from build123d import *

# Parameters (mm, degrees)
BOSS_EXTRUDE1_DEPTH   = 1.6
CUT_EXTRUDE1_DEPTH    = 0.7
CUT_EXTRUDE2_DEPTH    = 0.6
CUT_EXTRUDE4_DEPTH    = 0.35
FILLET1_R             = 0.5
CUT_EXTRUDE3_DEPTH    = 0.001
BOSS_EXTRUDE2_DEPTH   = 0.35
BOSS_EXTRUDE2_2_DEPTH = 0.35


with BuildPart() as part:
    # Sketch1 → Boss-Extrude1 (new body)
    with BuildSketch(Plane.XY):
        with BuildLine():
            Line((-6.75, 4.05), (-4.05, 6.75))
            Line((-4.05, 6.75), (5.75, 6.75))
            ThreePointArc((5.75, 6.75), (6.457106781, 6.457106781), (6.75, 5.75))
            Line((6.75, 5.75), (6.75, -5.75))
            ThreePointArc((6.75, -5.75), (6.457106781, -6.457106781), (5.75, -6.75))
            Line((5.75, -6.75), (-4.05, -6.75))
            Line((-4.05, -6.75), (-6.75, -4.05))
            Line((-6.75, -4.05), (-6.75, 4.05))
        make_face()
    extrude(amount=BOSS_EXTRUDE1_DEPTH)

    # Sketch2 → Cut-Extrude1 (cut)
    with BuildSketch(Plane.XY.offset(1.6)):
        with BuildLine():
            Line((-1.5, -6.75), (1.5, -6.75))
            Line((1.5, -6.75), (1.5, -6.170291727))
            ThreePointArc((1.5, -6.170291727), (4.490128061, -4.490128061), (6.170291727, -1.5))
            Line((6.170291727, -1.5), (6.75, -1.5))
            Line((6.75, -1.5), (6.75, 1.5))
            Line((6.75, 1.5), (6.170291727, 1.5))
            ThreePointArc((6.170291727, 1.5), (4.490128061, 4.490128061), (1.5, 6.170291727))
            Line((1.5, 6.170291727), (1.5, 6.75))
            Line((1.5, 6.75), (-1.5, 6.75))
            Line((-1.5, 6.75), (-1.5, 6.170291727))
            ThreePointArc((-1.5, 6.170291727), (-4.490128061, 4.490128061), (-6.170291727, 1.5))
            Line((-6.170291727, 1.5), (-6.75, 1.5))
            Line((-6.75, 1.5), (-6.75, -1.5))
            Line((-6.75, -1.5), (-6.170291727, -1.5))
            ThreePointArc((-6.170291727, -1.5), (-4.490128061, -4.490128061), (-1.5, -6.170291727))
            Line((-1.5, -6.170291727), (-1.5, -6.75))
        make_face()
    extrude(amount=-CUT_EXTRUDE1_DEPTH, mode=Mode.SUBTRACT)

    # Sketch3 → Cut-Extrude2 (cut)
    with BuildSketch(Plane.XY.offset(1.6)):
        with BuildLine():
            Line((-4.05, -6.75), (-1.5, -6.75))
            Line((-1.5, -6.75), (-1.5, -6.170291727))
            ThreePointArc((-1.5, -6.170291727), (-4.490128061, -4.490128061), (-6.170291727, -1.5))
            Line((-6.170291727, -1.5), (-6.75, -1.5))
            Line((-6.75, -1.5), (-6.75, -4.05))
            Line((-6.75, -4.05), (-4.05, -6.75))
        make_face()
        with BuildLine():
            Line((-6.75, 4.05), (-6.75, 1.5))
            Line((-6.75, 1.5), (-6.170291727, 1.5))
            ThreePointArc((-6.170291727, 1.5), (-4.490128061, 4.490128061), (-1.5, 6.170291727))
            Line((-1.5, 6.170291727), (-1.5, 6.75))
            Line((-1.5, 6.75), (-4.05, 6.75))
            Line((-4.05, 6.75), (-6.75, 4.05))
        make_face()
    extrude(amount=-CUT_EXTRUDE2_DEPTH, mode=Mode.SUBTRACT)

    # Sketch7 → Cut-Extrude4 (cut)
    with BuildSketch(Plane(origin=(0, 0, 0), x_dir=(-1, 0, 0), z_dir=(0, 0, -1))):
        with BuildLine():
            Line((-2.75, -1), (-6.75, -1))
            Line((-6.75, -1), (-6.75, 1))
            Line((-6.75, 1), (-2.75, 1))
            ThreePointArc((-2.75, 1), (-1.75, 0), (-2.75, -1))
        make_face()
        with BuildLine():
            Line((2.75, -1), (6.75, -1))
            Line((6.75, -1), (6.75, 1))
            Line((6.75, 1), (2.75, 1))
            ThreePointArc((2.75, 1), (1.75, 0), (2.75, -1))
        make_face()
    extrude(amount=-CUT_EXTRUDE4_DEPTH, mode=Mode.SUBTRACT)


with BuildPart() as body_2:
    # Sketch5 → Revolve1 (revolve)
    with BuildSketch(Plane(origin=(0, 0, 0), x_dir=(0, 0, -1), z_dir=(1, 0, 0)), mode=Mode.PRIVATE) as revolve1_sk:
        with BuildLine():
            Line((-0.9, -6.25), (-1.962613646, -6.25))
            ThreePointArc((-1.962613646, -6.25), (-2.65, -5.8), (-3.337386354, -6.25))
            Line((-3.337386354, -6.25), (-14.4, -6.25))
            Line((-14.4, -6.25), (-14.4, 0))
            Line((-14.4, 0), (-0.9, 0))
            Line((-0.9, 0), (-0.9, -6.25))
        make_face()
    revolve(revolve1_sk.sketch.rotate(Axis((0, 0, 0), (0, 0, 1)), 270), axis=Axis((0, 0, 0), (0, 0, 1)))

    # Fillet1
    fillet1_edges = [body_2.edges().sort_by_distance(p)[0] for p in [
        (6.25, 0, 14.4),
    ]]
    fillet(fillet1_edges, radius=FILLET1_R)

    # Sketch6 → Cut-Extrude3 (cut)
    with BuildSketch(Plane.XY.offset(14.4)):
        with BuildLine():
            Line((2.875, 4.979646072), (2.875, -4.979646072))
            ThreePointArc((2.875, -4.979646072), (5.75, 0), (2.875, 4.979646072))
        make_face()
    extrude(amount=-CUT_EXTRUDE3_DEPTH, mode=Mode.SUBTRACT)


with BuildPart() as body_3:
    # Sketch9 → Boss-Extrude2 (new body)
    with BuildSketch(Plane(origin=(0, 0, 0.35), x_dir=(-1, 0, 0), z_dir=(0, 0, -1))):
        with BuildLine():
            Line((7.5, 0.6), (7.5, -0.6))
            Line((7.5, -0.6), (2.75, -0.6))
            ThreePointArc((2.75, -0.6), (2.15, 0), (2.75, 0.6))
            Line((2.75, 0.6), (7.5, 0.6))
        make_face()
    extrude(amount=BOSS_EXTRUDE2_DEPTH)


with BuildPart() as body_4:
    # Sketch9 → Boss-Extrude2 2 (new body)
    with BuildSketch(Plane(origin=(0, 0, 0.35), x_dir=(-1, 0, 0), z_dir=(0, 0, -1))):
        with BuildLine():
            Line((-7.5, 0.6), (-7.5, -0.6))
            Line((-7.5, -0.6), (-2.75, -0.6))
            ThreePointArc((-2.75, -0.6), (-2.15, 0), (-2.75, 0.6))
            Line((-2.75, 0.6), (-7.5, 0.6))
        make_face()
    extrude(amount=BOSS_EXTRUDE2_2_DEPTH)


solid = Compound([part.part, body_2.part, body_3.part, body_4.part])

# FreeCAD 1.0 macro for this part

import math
import FreeCAD as App
import Part
import Sketcher
Q = App.Units.Quantity


def edges_at(feature, points):
    """Names of the edges that pass closest to the given points."""
    edges = feature.Shape.Edges
    near = lambda p: min(range(len(edges)), key=lambda i: edges[i].distToShape(Part.Vertex(*p))[0])
    return sorted({f"Edge{near(p) + 1}" for p in points})

doc = App.newDocument("Part")
body = doc.addObject("PartDesign::Body", "Body")

# Sketch on XY plane
sketch1 = body.newObject("Sketcher::SketchObject", "Sketch")
sketch1.AttachmentSupport = (doc.getObject("XY_Plane"), [""])
sketch1.MapMode = "FlatFace"
sketch1.addGeometry([
    Part.LineSegment(App.Vector(-4.05, 6.75, 0), App.Vector(-6.75, 4.05, 0)),  # 0
    Part.LineSegment(App.Vector(-6.75, 4.05, 0), App.Vector(-6.75, -4.05, 0)),  # 1
    Part.LineSegment(App.Vector(-6.75, -4.05, 0), App.Vector(-4.05, -6.75, 0)),  # 2
    Part.LineSegment(App.Vector(-4.05, -6.75, 0), App.Vector(5.75, -6.75, 0)),  # 3
    Part.ArcOfCircle(Part.Circle(App.Vector(5.75, -5.75, 0), App.Vector(0, 0, 1), 1), math.radians(-90), math.radians(0)),  # 4
    Part.LineSegment(App.Vector(6.75, -5.75, 0), App.Vector(6.75, 5.75, 0)),  # 5
    Part.ArcOfCircle(Part.Circle(App.Vector(5.75, 5.75, 0), App.Vector(0, 0, 1), 1), math.radians(0), math.radians(90)),  # 6
    Part.LineSegment(App.Vector(5.75, 6.75, 0), App.Vector(-4.05, 6.75, 0)),  # 7
], False)
sketch1.addConstraint([
    Sketcher.Constraint("Coincident", 0, 2, 1, 1),
    Sketcher.Constraint("Coincident", 1, 2, 2, 1),
    Sketcher.Constraint("Coincident", 2, 2, 3, 1),
    Sketcher.Constraint("Tangent", 3, 2, 4, 1),
    Sketcher.Constraint("Tangent", 4, 2, 5, 1),
    Sketcher.Constraint("Tangent", 5, 2, 6, 1),
    Sketcher.Constraint("Tangent", 6, 2, 7, 1),
    Sketcher.Constraint("Coincident", 7, 2, 0, 1),
    Sketcher.Constraint("Vertical", 1),
    Sketcher.Constraint("Horizontal", 3),
    Sketcher.Constraint("Vertical", 5),
    Sketcher.Constraint("Horizontal", 7),
    Sketcher.Constraint("Equal", 4, 6),
    Sketcher.Constraint("Symmetric", 2, 2, 7, 2, -1),
    Sketcher.Constraint("Perpendicular", 0, 2),
    Sketcher.Constraint("Equal", 0, 2),
    Sketcher.Constraint("Radius", 4, Q("1 mm")),
    Sketcher.Constraint("DistanceX", 3, 1, 3, 2, Q("9.8 mm")),
    Sketcher.Constraint("DistanceY", 1, 2, 1, 1, Q("8.1 mm")),
    Sketcher.Constraint("DistanceY", 5, 1, 5, 2, Q("11.5 mm")),
    Sketcher.Constraint("DistanceX", -1, 1, 4, 3, Q("5.75 mm")),
])
pad1 = body.newObject("PartDesign::Pad", "Pad")
pad1.Profile = sketch1
pad1.Length = 1.6

# Sketch on XY plane
sketch2 = body.newObject("Sketcher::SketchObject", "Sketch001")
sketch2.AttachmentSupport = (doc.getObject("XY_Plane"), [""])
sketch2.MapMode = "FlatFace"
sketch2.AttachmentOffset = App.Placement(App.Vector(0, 0, 1.6), App.Rotation())
sketch2.addGeometry([
    Part.LineSegment(App.Vector(-1.5, -6.75, 0), App.Vector(1.5, -6.75, 0)),  # 0
    Part.LineSegment(App.Vector(1.5, -6.75, 0), App.Vector(1.5, -6.170292, 0)),  # 1
    Part.ArcOfCircle(Part.Circle(App.Vector(0, 0, 0), App.Vector(0, 0, 1), 6.35), math.radians(-76.336424), math.radians(-13.663576)),  # 2
    Part.LineSegment(App.Vector(6.170292, -1.5, 0), App.Vector(6.75, -1.5, 0)),  # 3
    Part.LineSegment(App.Vector(6.75, -1.5, 0), App.Vector(6.75, 1.5, 0)),  # 4
    Part.LineSegment(App.Vector(6.75, 1.5, 0), App.Vector(6.170292, 1.5, 0)),  # 5
    Part.ArcOfCircle(Part.Circle(App.Vector(0, 0, 0), App.Vector(0, 0, 1), 6.35), math.radians(13.663576), math.radians(76.336424)),  # 6
    Part.LineSegment(App.Vector(1.5, 6.170292, 0), App.Vector(1.5, 6.75, 0)),  # 7
    Part.LineSegment(App.Vector(1.5, 6.75, 0), App.Vector(-1.5, 6.75, 0)),  # 8
    Part.LineSegment(App.Vector(-1.5, 6.75, 0), App.Vector(-1.5, 6.170292, 0)),  # 9
    Part.ArcOfCircle(Part.Circle(App.Vector(0, 0, 0), App.Vector(0, 0, 1), 6.35), math.radians(103.663576), math.radians(166.336424)),  # 10
    Part.LineSegment(App.Vector(-6.170292, 1.5, 0), App.Vector(-6.75, 1.5, 0)),  # 11
    Part.LineSegment(App.Vector(-6.75, 1.5, 0), App.Vector(-6.75, -1.5, 0)),  # 12
    Part.LineSegment(App.Vector(-6.75, -1.5, 0), App.Vector(-6.170292, -1.5, 0)),  # 13
    Part.ArcOfCircle(Part.Circle(App.Vector(0, 0, 0), App.Vector(0, 0, 1), 6.35), math.radians(-166.336424), math.radians(-103.663576)),  # 14
    Part.LineSegment(App.Vector(-1.5, -6.170292, 0), App.Vector(-1.5, -6.75, 0)),  # 15
], False)
sketch2.addConstraint([
    Sketcher.Constraint("Coincident", 0, 2, 1, 1),
    Sketcher.Constraint("Coincident", 1, 2, 2, 1),
    Sketcher.Constraint("Coincident", 2, 2, 3, 1),
    Sketcher.Constraint("Coincident", 3, 2, 4, 1),
    Sketcher.Constraint("Coincident", 4, 2, 5, 1),
    Sketcher.Constraint("Coincident", 5, 2, 6, 1),
    Sketcher.Constraint("Coincident", 6, 2, 7, 1),
    Sketcher.Constraint("Coincident", 7, 2, 8, 1),
    Sketcher.Constraint("Coincident", 8, 2, 9, 1),
    Sketcher.Constraint("Coincident", 9, 2, 10, 1),
    Sketcher.Constraint("Coincident", 10, 2, 11, 1),
    Sketcher.Constraint("Coincident", 11, 2, 12, 1),
    Sketcher.Constraint("Coincident", 12, 2, 13, 1),
    Sketcher.Constraint("Coincident", 13, 2, 14, 1),
    Sketcher.Constraint("Coincident", 14, 2, 15, 1),
    Sketcher.Constraint("Coincident", 15, 2, 0, 1),
    Sketcher.Constraint("Horizontal", 0),
    Sketcher.Constraint("Vertical", 1),
    Sketcher.Constraint("Horizontal", 3),
    Sketcher.Constraint("Vertical", 4),
    Sketcher.Constraint("Horizontal", 5),
    Sketcher.Constraint("Vertical", 7),
    Sketcher.Constraint("Horizontal", 8),
    Sketcher.Constraint("Vertical", 9),
    Sketcher.Constraint("Horizontal", 11),
    Sketcher.Constraint("Vertical", 12),
    Sketcher.Constraint("Horizontal", 13),
    Sketcher.Constraint("Vertical", 15),
    Sketcher.Constraint("Coincident", 2, 3, -1, 1),
    Sketcher.Constraint("Coincident", 6, 3, -1, 1),
    Sketcher.Constraint("Coincident", 10, 3, -1, 1),
    Sketcher.Constraint("Coincident", 14, 3, -1, 1),
    Sketcher.Constraint("Equal", 2, 6),
    Sketcher.Constraint("Equal", 6, 10),
    Sketcher.Constraint("Equal", 10, 14),
    Sketcher.Constraint("Symmetric", 0, 2, 8, 2, -1, 1),
    Sketcher.Constraint("Symmetric", 3, 2, 11, 2, -1, 1),
    Sketcher.Constraint("Horizontal", 6, 2, 9, 2),
    Sketcher.Constraint("Horizontal", 5, 2, 10, 2),
    Sketcher.Constraint("Horizontal", 3, 2, 12, 2),
    Sketcher.Constraint("Horizontal", 1, 2, 14, 2),
    Sketcher.Constraint("Equal", 13, 1),
    Sketcher.Constraint("Equal", 8, 4),
    Sketcher.Constraint("DistanceX", 0, 1, 0, 2, Q("3 mm")),
    Sketcher.Constraint("Radius", 2, Q("6.35 mm")),
    Sketcher.Constraint("DistanceY", 0, 2, -1, 1, Q("6.75 mm")),
])
pocket1 = body.newObject("PartDesign::Pocket", "Pocket")
pocket1.Profile = sketch2
pocket1.Length = 0.7

# Sketch on XY plane
sketch3 = body.newObject("Sketcher::SketchObject", "Sketch002")
sketch3.AttachmentSupport = (doc.getObject("XY_Plane"), [""])
sketch3.MapMode = "FlatFace"
sketch3.AttachmentOffset = App.Placement(App.Vector(0, 0, 1.6), App.Rotation())
sketch3.addGeometry([
    Part.LineSegment(App.Vector(-4.05, -6.75, 0), App.Vector(-1.5, -6.75, 0)),  # 0
    Part.LineSegment(App.Vector(-1.5, -6.75, 0), App.Vector(-1.5, -6.170292, 0)),  # 1
    Part.ArcOfCircle(Part.Circle(App.Vector(0, 0, 0), App.Vector(0, 0, 1), 6.35), math.radians(-166.336424), math.radians(-103.663576)),  # 2
    Part.LineSegment(App.Vector(-6.170292, -1.5, 0), App.Vector(-6.75, -1.5, 0)),  # 3
    Part.LineSegment(App.Vector(-6.75, -1.5, 0), App.Vector(-6.75, -4.05, 0)),  # 4
    Part.LineSegment(App.Vector(-6.75, -4.05, 0), App.Vector(-4.05, -6.75, 0)),  # 5
    Part.LineSegment(App.Vector(-6.75, 4.05, 0), App.Vector(-6.75, 1.5, 0)),  # 6
    Part.LineSegment(App.Vector(-6.75, 1.5, 0), App.Vector(-6.170292, 1.5, 0)),  # 7
    Part.ArcOfCircle(Part.Circle(App.Vector(0, 0, 0), App.Vector(0, 0, 1), 6.35), math.radians(103.663576), math.radians(166.336424)),  # 8
    Part.LineSegment(App.Vector(-1.5, 6.170292, 0), App.Vector(-1.5, 6.75, 0)),  # 9
    Part.LineSegment(App.Vector(-1.5, 6.75, 0), App.Vector(-4.05, 6.75, 0)),  # 10
    Part.LineSegment(App.Vector(-4.05, 6.75, 0), App.Vector(-6.75, 4.05, 0)),  # 11
], False)
sketch3.addConstraint([
    Sketcher.Constraint("Coincident", 0, 2, 1, 1),
    Sketcher.Constraint("Coincident", 1, 2, 2, 2),
    Sketcher.Constraint("Coincident", 2, 1, 3, 1),
    Sketcher.Constraint("Coincident", 3, 2, 4, 1),
    Sketcher.Constraint("Coincident", 4, 2, 5, 1),
    Sketcher.Constraint("Coincident", 5, 2, 0, 1),
    Sketcher.Constraint("Coincident", 6, 2, 7, 1),
    Sketcher.Constraint("Coincident", 7, 2, 8, 2),
    Sketcher.Constraint("Coincident", 8, 1, 9, 1),
    Sketcher.Constraint("Coincident", 9, 2, 10, 1),
    Sketcher.Constraint("Coincident", 10, 2, 11, 1),
    Sketcher.Constraint("Coincident", 11, 2, 6, 1),
    Sketcher.Constraint("Horizontal", 0),
    Sketcher.Constraint("Vertical", 1),
    Sketcher.Constraint("Horizontal", 3),
    Sketcher.Constraint("Vertical", 4),
    Sketcher.Constraint("Vertical", 6),
    Sketcher.Constraint("Horizontal", 7),
    Sketcher.Constraint("Vertical", 9),
    Sketcher.Constraint("Horizontal", 10),
    Sketcher.Constraint("Coincident", 2, 3, -1, 1),
    Sketcher.Constraint("Coincident", 8, 3, -1, 1),
    Sketcher.Constraint("Equal", 2, 8),
    Sketcher.Constraint("Symmetric", 3, 2, 6, 2, -1),
    Sketcher.Constraint("Symmetric", 0, 2, 9, 2, -1),
    Sketcher.Constraint("Perpendicular", 5, 11),
    Sketcher.Constraint("Vertical", 5, 2, 10, 2),
    Sketcher.Constraint("Equal", 7, 1),
    Sketcher.Constraint("Equal", 10, 4),
    Sketcher.Constraint("Equal", 4, 6),
    Sketcher.Constraint("Radius", 2, Q("6.35 mm")),
    Sketcher.Constraint("DistanceY", 3, 2, 6, 2, Q("3 mm")),
    Sketcher.Constraint("DistanceX", 0, 1, 0, 2, Q("2.55 mm")),
    Sketcher.Constraint("DistanceY", 0, 2, 4, 2, Q("2.7 mm")),
])
pocket2 = body.newObject("PartDesign::Pocket", "Pocket001")
pocket2.Profile = sketch3
pocket2.Length = 0.6

# Sketch on XY plane
sketch4 = body.newObject("Sketcher::SketchObject", "Sketch003")
sketch4.AttachmentSupport = (doc.getObject("XY_Plane"), [""])
sketch4.MapMode = "FlatFace"
sketch4.addGeometry([
    Part.LineSegment(App.Vector(6.75, -1, 0), App.Vector(2.75, -1, 0)),  # 0
    Part.ArcOfCircle(Part.Circle(App.Vector(2.75, 0, 0), App.Vector(0, 0, 1), 1), math.radians(90), math.radians(270)),  # 1
    Part.LineSegment(App.Vector(2.75, 1, 0), App.Vector(6.75, 1, 0)),  # 2
    Part.LineSegment(App.Vector(6.75, 1, 0), App.Vector(6.75, -1, 0)),  # 3
    Part.LineSegment(App.Vector(-2.75, -1, 0), App.Vector(-6.75, -1, 0)),  # 4
    Part.LineSegment(App.Vector(-6.75, -1, 0), App.Vector(-6.75, 1, 0)),  # 5
    Part.LineSegment(App.Vector(-6.75, 1, 0), App.Vector(-2.75, 1, 0)),  # 6
    Part.ArcOfCircle(Part.Circle(App.Vector(-2.75, 0, 0), App.Vector(0, 0, 1), 1), math.radians(-90), math.radians(90)),  # 7
], False)
sketch4.addConstraint([
    Sketcher.Constraint("Tangent", 0, 2, 1, 2),
    Sketcher.Constraint("Tangent", 1, 1, 2, 1),
    Sketcher.Constraint("Coincident", 2, 2, 3, 1),
    Sketcher.Constraint("Coincident", 3, 2, 0, 1),
    Sketcher.Constraint("Coincident", 4, 2, 5, 1),
    Sketcher.Constraint("Coincident", 5, 2, 6, 1),
    Sketcher.Constraint("Tangent", 6, 2, 7, 2),
    Sketcher.Constraint("Tangent", 7, 1, 4, 1),
    Sketcher.Constraint("Horizontal", 0),
    Sketcher.Constraint("Horizontal", 2),
    Sketcher.Constraint("Vertical", 3),
    Sketcher.Constraint("Horizontal", 4),
    Sketcher.Constraint("Vertical", 5),
    Sketcher.Constraint("Horizontal", 6),
    Sketcher.Constraint("Equal", 1, 7),
    Sketcher.Constraint("Symmetric", 1, 3, 7, 3, -1, 1),
    Sketcher.Constraint("Symmetric", 3, 2, 4, 2, -2),
    Sketcher.Constraint("Radius", 1, Q("1 mm")),
    Sketcher.Constraint("DistanceX", 0, 2, 0, 1, Q("4 mm")),
    Sketcher.Constraint("DistanceX", 7, 3, 1, 3, Q("5.5 mm")),
])
pocket3 = body.newObject("PartDesign::Pocket", "Pocket002")
pocket3.Profile = sketch4
pocket3.Length = 0.35
pocket3.Reversed = True
body2 = doc.addObject("PartDesign::Body", "Body001")

# Sketch on YZ plane
sketch5 = body2.newObject("Sketcher::SketchObject", "Sketch004")
sketch5.AttachmentSupport = (doc.getObject("YZ_Plane001"), [""])
sketch5.MapMode = "FlatFace"
sketch5.addGeometry([
    Part.LineSegment(App.Vector(-6.25, 1.962614, 0), App.Vector(-6.25, 0.9, 0)),  # 0
    Part.LineSegment(App.Vector(-6.25, 0.9, 0), App.Vector(0, 0.9, 0)),  # 1
    Part.LineSegment(App.Vector(0, 0.9, 0), App.Vector(0, 14.4, 0)),  # 2
    Part.LineSegment(App.Vector(0, 14.4, 0), App.Vector(-6.25, 14.4, 0)),  # 3
    Part.LineSegment(App.Vector(-6.25, 14.4, 0), App.Vector(-6.25, 3.337386, 0)),  # 4
    Part.ArcOfCircle(Part.Circle(App.Vector(-6.55, 2.65, 0), App.Vector(0, 0, 1), 0.75), math.radians(-66.421822), math.radians(66.421822)),  # 5
], False)
sketch5.addConstraint([
    Sketcher.Constraint("Coincident", 0, 2, 1, 1),
    Sketcher.Constraint("Coincident", 1, 2, 2, 1),
    Sketcher.Constraint("Coincident", 2, 2, 3, 1),
    Sketcher.Constraint("Coincident", 3, 2, 4, 1),
    Sketcher.Constraint("Coincident", 4, 2, 5, 2),
    Sketcher.Constraint("Coincident", 5, 1, 0, 1),
    Sketcher.Constraint("Vertical", 0),
    Sketcher.Constraint("Horizontal", 1),
    Sketcher.Constraint("Vertical", 2),
    Sketcher.Constraint("Horizontal", 3),
    Sketcher.Constraint("Vertical", 4),
    Sketcher.Constraint("PointOnObject", 1, 2, -2),
    Sketcher.Constraint("Vertical", 0, 2, 3, 2),
    Sketcher.Constraint("Radius", 5, Q("0.75 mm")),
    Sketcher.Constraint("DistanceY", 2, 1, 2, 2, Q("13.5 mm")),
    Sketcher.Constraint("DistanceX", 1, 1, 1, 2, Q("6.25 mm")),
    Sketcher.Constraint("DistanceY", -1, 1, 0, 2, Q("0.9 mm")),
    Sketcher.Constraint("DistanceX", 5, 3, 0, 2, Q("0.3 mm")),
    Sketcher.Constraint("DistanceY", -1, 1, 5, 3, Q("2.65 mm")),
])
revolution = body2.newObject("PartDesign::Revolution", "Revolution")
revolution.Profile = sketch5
revolution.ReferenceAxis = (sketch5, ["V_Axis"])
revolution.Angle = 360
doc.recompute()

fillet = body2.newObject("PartDesign::Fillet", "Fillet")
fillet.Base = (revolution, edges_at(revolution, [(6.25, 0, 14.4)]))
fillet.Radius = 0.5

# Sketch on XY plane
sketch6 = body2.newObject("Sketcher::SketchObject", "Sketch005")
sketch6.AttachmentSupport = (doc.getObject("XY_Plane001"), [""])
sketch6.MapMode = "FlatFace"
sketch6.AttachmentOffset = App.Placement(App.Vector(0, 0, 14.4), App.Rotation())
sketch6.addGeometry([
    Part.LineSegment(App.Vector(2.875, 4.979646, 0), App.Vector(2.875, -4.979646, 0)),
    Part.ArcOfCircle(Part.Circle(App.Vector(0, 0, 0), App.Vector(0, 0, 1), 5.75), math.radians(-60), math.radians(60)),
], False)
sketch6.addConstraint([
    Sketcher.Constraint("Coincident", 0, 1, 1, 2),
    Sketcher.Constraint("Coincident", 1, 1, 0, 2),
    Sketcher.Constraint("Vertical", 0),
    Sketcher.Constraint("Coincident", 1, 3, -1, 1),
    Sketcher.Constraint("Radius", 1, Q("5.75 mm")),
    Sketcher.Constraint("DistanceX", -1, 1, 0, 1, Q("2.875 mm")),
])
pocket4 = body2.newObject("PartDesign::Pocket", "Pocket003")
pocket4.Profile = sketch6
pocket4.Length = 0.001
body3 = doc.addObject("PartDesign::Body", "Body002")

# Sketch on XY plane
sketch7 = body3.newObject("Sketcher::SketchObject", "Sketch006")
sketch7.AttachmentSupport = (doc.getObject("XY_Plane002"), [""])
sketch7.MapMode = "FlatFace"
sketch7.AttachmentOffset = App.Placement(App.Vector(0, 0, 0.35), App.Rotation())
sketch7.addGeometry([
    Part.LineSegment(App.Vector(-7.5, -0.6, 0), App.Vector(-7.5, 0.6, 0)),
    Part.LineSegment(App.Vector(-7.5, 0.6, 0), App.Vector(-2.75, 0.6, 0)),
    Part.ArcOfCircle(Part.Circle(App.Vector(-2.75, 0, 0), App.Vector(0, 0, 1), 0.6), math.radians(-90), math.radians(90)),
    Part.LineSegment(App.Vector(-2.75, -0.6, 0), App.Vector(-7.5, -0.6, 0)),
], False)
sketch7.addConstraint([
    Sketcher.Constraint("Coincident", 0, 2, 1, 1),
    Sketcher.Constraint("Tangent", 1, 2, 2, 2),
    Sketcher.Constraint("Tangent", 2, 1, 3, 1),
    Sketcher.Constraint("Coincident", 3, 2, 0, 1),
    Sketcher.Constraint("Vertical", 0),
    Sketcher.Constraint("Horizontal", 1),
    Sketcher.Constraint("Horizontal", 3),
    Sketcher.Constraint("PointOnObject", 2, 3, -1),
    Sketcher.Constraint("Radius", 2, Q("0.6 mm")),
    Sketcher.Constraint("DistanceX", 1, 1, 1, 2, Q("4.75 mm")),
    Sketcher.Constraint("DistanceX", 0, 2, -1, 1, Q("7.5 mm")),
])
pad2 = body3.newObject("PartDesign::Pad", "Pad001")
pad2.Profile = sketch7
pad2.Length = 0.35
pad2.Reversed = True
body4 = doc.addObject("PartDesign::Body", "Body003")

# Sketch on XY plane
sketch8 = body4.newObject("Sketcher::SketchObject", "Sketch007")
sketch8.AttachmentSupport = (doc.getObject("XY_Plane003"), [""])
sketch8.MapMode = "FlatFace"
sketch8.AttachmentOffset = App.Placement(App.Vector(0, 0, 0.35), App.Rotation())
sketch8.addGeometry([
    Part.LineSegment(App.Vector(7.5, 0.6, 0), App.Vector(7.5, -0.6, 0)),
    Part.LineSegment(App.Vector(7.5, -0.6, 0), App.Vector(2.75, -0.6, 0)),
    Part.ArcOfCircle(Part.Circle(App.Vector(2.75, 0, 0), App.Vector(0, 0, 1), 0.6), math.radians(90), math.radians(270)),
    Part.LineSegment(App.Vector(2.75, 0.6, 0), App.Vector(7.5, 0.6, 0)),
], False)
sketch8.addConstraint([
    Sketcher.Constraint("Coincident", 0, 2, 1, 1),
    Sketcher.Constraint("Tangent", 1, 2, 2, 2),
    Sketcher.Constraint("Tangent", 2, 1, 3, 1),
    Sketcher.Constraint("Coincident", 3, 2, 0, 1),
    Sketcher.Constraint("Vertical", 0),
    Sketcher.Constraint("Horizontal", 1),
    Sketcher.Constraint("Horizontal", 3),
    Sketcher.Constraint("PointOnObject", 2, 3, -1),
    Sketcher.Constraint("Radius", 2, Q("0.6 mm")),
    Sketcher.Constraint("DistanceX", 1, 2, 1, 1, Q("4.75 mm")),
    Sketcher.Constraint("DistanceX", -1, 1, 0, 2, Q("7.5 mm")),
])
pad3 = body4.newObject("PartDesign::Pad", "Pad002")
pad3.Profile = sketch8
pad3.Length = 0.35
pad3.Reversed = True

doc.recompute()
